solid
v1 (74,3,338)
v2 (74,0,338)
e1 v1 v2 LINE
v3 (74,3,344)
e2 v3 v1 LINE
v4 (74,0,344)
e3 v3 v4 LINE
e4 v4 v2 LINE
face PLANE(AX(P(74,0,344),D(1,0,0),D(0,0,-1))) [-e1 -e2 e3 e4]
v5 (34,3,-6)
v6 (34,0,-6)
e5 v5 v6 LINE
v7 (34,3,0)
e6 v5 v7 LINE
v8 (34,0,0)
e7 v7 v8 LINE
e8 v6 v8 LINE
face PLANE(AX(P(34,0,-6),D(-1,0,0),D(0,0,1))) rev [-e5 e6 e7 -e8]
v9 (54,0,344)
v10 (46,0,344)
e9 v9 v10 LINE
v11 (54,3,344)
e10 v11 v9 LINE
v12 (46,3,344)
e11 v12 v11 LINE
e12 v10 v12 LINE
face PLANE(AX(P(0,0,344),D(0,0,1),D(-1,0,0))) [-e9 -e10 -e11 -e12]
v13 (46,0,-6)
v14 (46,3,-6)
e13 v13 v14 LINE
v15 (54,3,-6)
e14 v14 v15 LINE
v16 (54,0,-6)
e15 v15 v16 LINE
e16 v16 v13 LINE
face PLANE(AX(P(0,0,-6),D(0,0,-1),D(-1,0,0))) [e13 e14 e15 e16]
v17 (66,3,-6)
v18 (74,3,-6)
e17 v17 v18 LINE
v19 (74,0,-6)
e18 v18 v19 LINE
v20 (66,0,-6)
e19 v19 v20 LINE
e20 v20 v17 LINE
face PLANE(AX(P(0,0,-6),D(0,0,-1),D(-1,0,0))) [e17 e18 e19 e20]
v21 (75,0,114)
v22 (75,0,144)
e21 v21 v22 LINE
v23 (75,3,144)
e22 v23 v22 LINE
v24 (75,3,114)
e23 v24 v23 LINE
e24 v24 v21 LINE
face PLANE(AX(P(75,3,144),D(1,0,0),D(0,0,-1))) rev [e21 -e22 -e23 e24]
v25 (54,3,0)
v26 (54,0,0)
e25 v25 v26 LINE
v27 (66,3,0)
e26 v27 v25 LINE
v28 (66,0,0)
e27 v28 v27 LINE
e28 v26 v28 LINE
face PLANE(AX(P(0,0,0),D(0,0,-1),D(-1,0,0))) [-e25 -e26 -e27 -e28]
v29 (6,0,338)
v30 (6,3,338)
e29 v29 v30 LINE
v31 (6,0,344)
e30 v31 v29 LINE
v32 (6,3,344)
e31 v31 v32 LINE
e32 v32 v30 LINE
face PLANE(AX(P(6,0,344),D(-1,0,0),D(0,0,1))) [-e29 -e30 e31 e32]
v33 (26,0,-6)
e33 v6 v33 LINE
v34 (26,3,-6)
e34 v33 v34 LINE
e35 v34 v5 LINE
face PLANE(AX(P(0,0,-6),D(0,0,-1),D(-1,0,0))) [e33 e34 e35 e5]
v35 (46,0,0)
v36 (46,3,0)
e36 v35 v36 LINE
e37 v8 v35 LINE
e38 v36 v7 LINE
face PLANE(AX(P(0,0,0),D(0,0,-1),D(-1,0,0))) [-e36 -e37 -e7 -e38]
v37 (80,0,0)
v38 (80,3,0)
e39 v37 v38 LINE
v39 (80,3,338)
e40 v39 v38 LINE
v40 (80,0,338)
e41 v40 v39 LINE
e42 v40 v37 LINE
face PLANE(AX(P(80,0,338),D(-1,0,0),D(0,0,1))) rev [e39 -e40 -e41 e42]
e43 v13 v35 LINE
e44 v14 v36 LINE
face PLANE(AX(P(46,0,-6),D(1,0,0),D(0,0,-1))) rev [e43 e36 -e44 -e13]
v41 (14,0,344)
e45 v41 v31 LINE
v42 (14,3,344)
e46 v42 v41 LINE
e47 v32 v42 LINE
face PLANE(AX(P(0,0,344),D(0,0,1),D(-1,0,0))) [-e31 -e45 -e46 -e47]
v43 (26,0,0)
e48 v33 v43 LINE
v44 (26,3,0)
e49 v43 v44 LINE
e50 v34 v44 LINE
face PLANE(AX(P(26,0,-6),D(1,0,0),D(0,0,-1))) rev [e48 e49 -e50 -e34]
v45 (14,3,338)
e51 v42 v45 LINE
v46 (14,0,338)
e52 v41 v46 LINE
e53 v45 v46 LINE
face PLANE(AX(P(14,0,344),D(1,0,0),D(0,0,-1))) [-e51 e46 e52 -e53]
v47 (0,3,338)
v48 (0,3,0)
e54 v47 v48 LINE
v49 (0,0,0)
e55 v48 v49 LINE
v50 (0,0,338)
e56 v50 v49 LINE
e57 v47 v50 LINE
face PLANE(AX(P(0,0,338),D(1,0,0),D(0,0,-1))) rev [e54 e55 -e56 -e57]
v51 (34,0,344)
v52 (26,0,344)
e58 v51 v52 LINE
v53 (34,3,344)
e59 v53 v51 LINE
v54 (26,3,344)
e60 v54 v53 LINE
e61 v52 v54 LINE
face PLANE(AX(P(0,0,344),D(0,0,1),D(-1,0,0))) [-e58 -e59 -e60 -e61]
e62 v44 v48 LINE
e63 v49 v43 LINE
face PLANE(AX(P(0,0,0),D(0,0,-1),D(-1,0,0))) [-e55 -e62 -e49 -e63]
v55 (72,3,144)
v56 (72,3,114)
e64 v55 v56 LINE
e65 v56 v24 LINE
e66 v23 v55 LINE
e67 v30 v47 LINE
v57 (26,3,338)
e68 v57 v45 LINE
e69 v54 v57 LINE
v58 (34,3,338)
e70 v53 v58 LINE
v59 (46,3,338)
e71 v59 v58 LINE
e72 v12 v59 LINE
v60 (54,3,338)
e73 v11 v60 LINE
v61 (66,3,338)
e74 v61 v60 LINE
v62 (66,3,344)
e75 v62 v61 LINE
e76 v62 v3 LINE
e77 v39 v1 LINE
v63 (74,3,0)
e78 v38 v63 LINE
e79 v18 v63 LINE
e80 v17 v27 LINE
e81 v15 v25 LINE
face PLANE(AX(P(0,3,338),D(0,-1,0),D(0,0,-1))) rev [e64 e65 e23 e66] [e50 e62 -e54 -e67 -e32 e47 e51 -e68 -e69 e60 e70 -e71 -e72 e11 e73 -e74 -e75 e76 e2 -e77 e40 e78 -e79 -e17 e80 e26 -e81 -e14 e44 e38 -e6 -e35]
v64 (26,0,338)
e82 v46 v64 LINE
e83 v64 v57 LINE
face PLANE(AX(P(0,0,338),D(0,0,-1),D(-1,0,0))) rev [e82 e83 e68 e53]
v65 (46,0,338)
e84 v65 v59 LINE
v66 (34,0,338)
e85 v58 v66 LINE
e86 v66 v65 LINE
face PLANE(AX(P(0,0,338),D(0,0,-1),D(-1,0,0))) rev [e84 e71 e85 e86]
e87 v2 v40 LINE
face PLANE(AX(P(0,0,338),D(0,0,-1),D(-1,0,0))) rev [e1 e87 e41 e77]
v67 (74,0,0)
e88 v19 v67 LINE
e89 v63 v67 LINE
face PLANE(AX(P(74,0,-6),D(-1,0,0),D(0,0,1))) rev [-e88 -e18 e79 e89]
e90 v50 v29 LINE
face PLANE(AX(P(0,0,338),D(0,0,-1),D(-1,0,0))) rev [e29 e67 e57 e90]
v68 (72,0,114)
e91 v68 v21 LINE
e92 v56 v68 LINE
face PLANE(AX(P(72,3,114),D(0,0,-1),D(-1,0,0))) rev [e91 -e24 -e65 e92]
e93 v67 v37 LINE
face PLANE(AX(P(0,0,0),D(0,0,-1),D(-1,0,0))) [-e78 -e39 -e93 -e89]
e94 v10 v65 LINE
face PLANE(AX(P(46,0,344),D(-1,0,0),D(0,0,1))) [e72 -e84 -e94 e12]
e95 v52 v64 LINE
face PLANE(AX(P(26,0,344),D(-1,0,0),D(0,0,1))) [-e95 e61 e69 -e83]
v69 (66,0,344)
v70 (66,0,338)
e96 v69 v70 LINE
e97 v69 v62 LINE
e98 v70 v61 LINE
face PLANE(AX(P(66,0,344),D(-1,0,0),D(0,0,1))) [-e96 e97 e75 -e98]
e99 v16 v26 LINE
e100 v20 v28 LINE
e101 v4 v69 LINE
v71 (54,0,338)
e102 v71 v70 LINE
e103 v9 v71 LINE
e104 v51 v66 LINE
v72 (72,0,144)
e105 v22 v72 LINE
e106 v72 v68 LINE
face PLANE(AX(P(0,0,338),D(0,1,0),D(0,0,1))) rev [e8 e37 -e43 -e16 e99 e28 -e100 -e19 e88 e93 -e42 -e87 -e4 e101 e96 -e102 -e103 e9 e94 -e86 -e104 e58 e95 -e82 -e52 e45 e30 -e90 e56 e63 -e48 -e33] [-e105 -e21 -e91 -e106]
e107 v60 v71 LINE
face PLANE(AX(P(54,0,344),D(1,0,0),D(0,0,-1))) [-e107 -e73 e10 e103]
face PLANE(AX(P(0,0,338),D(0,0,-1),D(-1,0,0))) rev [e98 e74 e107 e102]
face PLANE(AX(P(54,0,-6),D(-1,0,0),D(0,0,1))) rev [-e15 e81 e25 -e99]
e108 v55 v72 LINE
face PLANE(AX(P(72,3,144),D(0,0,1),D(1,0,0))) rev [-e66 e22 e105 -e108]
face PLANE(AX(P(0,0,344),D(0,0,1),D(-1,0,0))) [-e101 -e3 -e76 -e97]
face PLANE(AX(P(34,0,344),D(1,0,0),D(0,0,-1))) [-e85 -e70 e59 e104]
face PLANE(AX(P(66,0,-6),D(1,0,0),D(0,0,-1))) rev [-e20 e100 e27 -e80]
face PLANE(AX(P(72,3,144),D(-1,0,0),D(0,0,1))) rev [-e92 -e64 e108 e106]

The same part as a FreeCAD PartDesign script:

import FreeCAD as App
import Part
import Sketcher


def add_polygon(sketch, points):
    """Adds a closed chain of lines whose ends are joined by coincident constraints."""
    first, n = sketch.GeometryCount, len(points)
    for a, b in zip(points, points[1:] + points[:1]):
        sketch.addGeometry(Part.LineSegment(App.Vector(*a, 0), App.Vector(*b, 0)), False)
    for i in range(n):
        sketch.addConstraint(Sketcher.Constraint("Coincident", first + i, 2, first + (i + 1) % n, 1))

doc = App.newDocument("Part")
body = doc.addObject("PartDesign::Body", "Body")

sketch1 = doc.addObject("Sketcher::SketchObject", "Sketch")
body.addObject(sketch1)
sketch1.AttachmentSupport = (doc.XY_Plane, [""])
sketch1.MapMode = "FlatFace"
add_polygon(sketch1, [(0, 3), (0, 0), (80, 0), (80, 3)])
sketch1.addConstraint(Sketcher.Constraint("Vertical", 0))
sketch1.addConstraint(Sketcher.Constraint("Horizontal", 1))
sketch1.addConstraint(Sketcher.Constraint("Vertical", 2))
sketch1.addConstraint(Sketcher.Constraint("Horizontal", 3))
sketch1.addConstraint(Sketcher.Constraint("Coincident", 0, 2, -1, 1))
sketch1.addConstraint(Sketcher.Constraint("DistanceX", 1, 1, 1, 2, 80.0))
sketch1.addConstraint(Sketcher.Constraint("DistanceY", 0, 2, 0, 1, 3.0))
pad1 = doc.addObject("PartDesign::Pad", "Pad")
body.addObject(pad1)
pad1.Profile = sketch1
pad1.Length = 338

sketch2 = doc.addObject("Sketcher::SketchObject", "Sketch001")
body.addObject(sketch2)
sketch2.AttachmentSupport = (doc.XY_Plane, [""])
sketch2.MapMode = "FlatFace"
add_polygon(sketch2, [(14, 3), (14, 0), (6, 0), (6, 3)])
add_polygon(sketch2, [(34, 3), (34, 0), (26, 0), (26, 3)])
add_polygon(sketch2, [(54, 3), (54, 0), (46, 0), (46, 3)])
add_polygon(sketch2, [(74, 3), (74, 0), (66, 0), (66, 3)])
sketch2.addConstraint(Sketcher.Constraint("Vertical", 0))
sketch2.addConstraint(Sketcher.Constraint("Horizontal", 1))
sketch2.addConstraint(Sketcher.Constraint("Vertical", 2))
sketch2.addConstraint(Sketcher.Constraint("Horizontal", 3))
sketch2.addConstraint(Sketcher.Constraint("Vertical", 4))
sketch2.addConstraint(Sketcher.Constraint("Horizontal", 5))
sketch2.addConstraint(Sketcher.Constraint("Vertical", 6))
sketch2.addConstraint(Sketcher.Constraint("Horizontal", 7))
sketch2.addConstraint(Sketcher.Constraint("Vertical", 8))
sketch2.addConstraint(Sketcher.Constraint("Horizontal", 9))
sketch2.addConstraint(Sketcher.Constraint("Vertical", 10))
sketch2.addConstraint(Sketcher.Constraint("Horizontal", 11))
sketch2.addConstraint(Sketcher.Constraint("Vertical", 12))
sketch2.addConstraint(Sketcher.Constraint("Horizontal", 13))
sketch2.addConstraint(Sketcher.Constraint("Vertical", 14))
sketch2.addConstraint(Sketcher.Constraint("Horizontal", 15))
sketch2.addConstraint(Sketcher.Constraint("PointOnObject", 0, 2, -1))
sketch2.addConstraint(Sketcher.Constraint("PointOnObject", 4, 2, -1))
sketch2.addConstraint(Sketcher.Constraint("PointOnObject", 8, 2, -1))
sketch2.addConstraint(Sketcher.Constraint("PointOnObject", 12, 2, -1))
sketch2.addConstraint(Sketcher.Constraint("Horizontal", 3, 2, 6, 2))
sketch2.addConstraint(Sketcher.Constraint("Horizontal", 7, 2, 10, 2))
sketch2.addConstraint(Sketcher.Constraint("Horizontal", 11, 2, 14, 2))
sketch2.addConstraint(Sketcher.Constraint("Equal", 3, 5))
sketch2.addConstraint(Sketcher.Constraint("Equal", 7, 9))
sketch2.addConstraint(Sketcher.Constraint("Equal", 11, 13))
sketch2.addConstraint(Sketcher.Constraint("DistanceX", 1, 2, 1, 1, 8.0))
sketch2.addConstraint(Sketcher.Constraint("DistanceY", 0, 2, 0, 1, 3.0))
sketch2.addConstraint(Sketcher.Constraint("DistanceX", -1, 1, 0, 2, 14.0))
sketch2.addConstraint(Sketcher.Constraint("DistanceX", -1, 1, 4, 2, 34.0))
sketch2.addConstraint(Sketcher.Constraint("DistanceX", -1, 1, 8, 2, 54.0))
sketch2.addConstraint(Sketcher.Constraint("DistanceX", -1, 1, 12, 2, 74.0))
pad2 = doc.addObject("PartDesign::Pad", "Pad001")
body.addObject(pad2)
pad2.Profile = sketch2
pad2.Length = 6
pad2.Reversed = True
doc.recompute()

datumplane = doc.addObject("PartDesign::Plane", "DatumPlane")
body.addObject(datumplane)
datumplane.AttachmentSupport = (doc.XY_Plane, [""])
datumplane.MapMode = "FlatFace"
datumplane.AttachmentOffset = App.Placement(App.Vector(0, 0, 169), App.Rotation())
mirrored = doc.addObject("PartDesign::Mirrored", "Mirrored")
body.addObject(mirrored)
mirrored.Originals = [pad2]
mirrored.MirrorPlane = (datumplane, [""])
body.Tip = mirrored

sketch3 = doc.addObject("Sketcher::SketchObject", "Sketch002")
body.addObject(sketch3)
sketch3.AttachmentSupport = (doc.XZ_Plane, [""])
sketch3.MapMode = "FlatFace"
add_polygon(sketch3, [(6, 0), (6, -6), (14, -6), (14, 0)])
sketch3.addConstraint(Sketcher.Constraint("Vertical", 0))
sketch3.addConstraint(Sketcher.Constraint("Horizontal", 1))
sketch3.addConstraint(Sketcher.Constraint("Vertical", 2))
sketch3.addConstraint(Sketcher.Constraint("Horizontal", 3))
sketch3.addConstraint(Sketcher.Constraint("PointOnObject", 2, 2, -1))
sketch3.addConstraint(Sketcher.Constraint("DistanceX", 1, 1, 1, 2, 8.0))
sketch3.addConstraint(Sketcher.Constraint("DistanceY", 0, 2, 0, 1, 6.0))
sketch3.addConstraint(Sketcher.Constraint("DistanceX", -1, 1, 0, 2, 6.0))
pocket1 = doc.addObject("PartDesign::Pocket", "Pocket")
body.addObject(pocket1)
pocket1.Profile = sketch3
pocket1.Length = 6

sketch4 = doc.addObject("Sketcher::SketchObject", "Sketch003")
body.addObject(sketch4)
sketch4.AttachmentSupport = (doc.XZ_Plane, [""])
sketch4.MapMode = "FlatFace"
add_polygon(sketch4, [(72, 144), (72, 114), (75, 114), (75, 144)])
sketch4.addConstraint(Sketcher.Constraint("Vertical", 0))
sketch4.addConstraint(Sketcher.Constraint("Horizontal", 1))
sketch4.addConstraint(Sketcher.Constraint("Vertical", 2))
sketch4.addConstraint(Sketcher.Constraint("Horizontal", 3))
sketch4.addConstraint(Sketcher.Constraint("DistanceX", 1, 1, 1, 2, 3.0))
sketch4.addConstraint(Sketcher.Constraint("DistanceY", 0, 2, 0, 1, 30.0))
sketch4.addConstraint(Sketcher.Constraint("DistanceX", -1, 1, 0, 2, 72.0))
sketch4.addConstraint(Sketcher.Constraint("DistanceY", -1, 1, 0, 2, 114.0))
pocket2 = doc.addObject("PartDesign::Pocket", "Pocket001")
body.addObject(pocket2)
pocket2.Profile = sketch4
pocket2.Length = 3

doc.recompute()
